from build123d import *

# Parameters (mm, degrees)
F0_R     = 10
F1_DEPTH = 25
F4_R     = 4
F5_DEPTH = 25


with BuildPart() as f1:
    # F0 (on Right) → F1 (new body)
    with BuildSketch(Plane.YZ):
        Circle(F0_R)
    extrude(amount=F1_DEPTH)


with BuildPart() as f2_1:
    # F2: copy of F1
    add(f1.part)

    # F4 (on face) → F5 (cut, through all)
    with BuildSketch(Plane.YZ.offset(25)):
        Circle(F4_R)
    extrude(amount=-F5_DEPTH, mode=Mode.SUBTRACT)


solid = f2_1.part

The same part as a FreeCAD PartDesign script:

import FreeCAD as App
import Part
import Sketcher
from FreeCAD import Vector
Q = App.Units.Quantity

doc = App.newDocument("Part")
body = doc.addObject("PartDesign::Body", "Body")

# Sketch on YZ plane
sketch1 = body.newObject("Sketcher::SketchObject", "Sketch")
sketch1.AttachmentSupport = (doc.getObject("YZ_Plane"), [""])
sketch1.MapMode = "FlatFace"
sketch1.addGeometry(Part.Circle(Vector(0, 0, 0), Vector(0, 0, 1), 10), False)
sketch1.addConstraint([
    Sketcher.Constraint("Coincident", 0, 3, -1, 1),
    Sketcher.Constraint("Diameter", 0, Q("20 mm")),
])
pad1 = body.newObject("PartDesign::Pad", "Pad")
pad1.Profile = sketch1
pad1.Length = 25

# Sketch on YZ plane
sketch2 = body.newObject("Sketcher::SketchObject", "Sketch001")
sketch2.AttachmentSupport = (doc.getObject("YZ_Plane"), [""])
sketch2.MapMode = "FlatFace"
sketch2.AttachmentOffset = App.Placement(Vector(0, 0, 25), App.Rotation())
sketch2.addGeometry(Part.Circle(Vector(0, 0, 0), Vector(0, 0, 1), 4), False)
sketch2.addConstraint([
    Sketcher.Constraint("Coincident", 0, 3, -1, 1),
    Sketcher.Constraint("Diameter", 0, Q("8 mm")),
])
pocket1 = body.newObject("PartDesign::Pocket", "Pocket")
pocket1.Profile = sketch2
pocket1.Type = "ThroughAll"

doc.recompute()
